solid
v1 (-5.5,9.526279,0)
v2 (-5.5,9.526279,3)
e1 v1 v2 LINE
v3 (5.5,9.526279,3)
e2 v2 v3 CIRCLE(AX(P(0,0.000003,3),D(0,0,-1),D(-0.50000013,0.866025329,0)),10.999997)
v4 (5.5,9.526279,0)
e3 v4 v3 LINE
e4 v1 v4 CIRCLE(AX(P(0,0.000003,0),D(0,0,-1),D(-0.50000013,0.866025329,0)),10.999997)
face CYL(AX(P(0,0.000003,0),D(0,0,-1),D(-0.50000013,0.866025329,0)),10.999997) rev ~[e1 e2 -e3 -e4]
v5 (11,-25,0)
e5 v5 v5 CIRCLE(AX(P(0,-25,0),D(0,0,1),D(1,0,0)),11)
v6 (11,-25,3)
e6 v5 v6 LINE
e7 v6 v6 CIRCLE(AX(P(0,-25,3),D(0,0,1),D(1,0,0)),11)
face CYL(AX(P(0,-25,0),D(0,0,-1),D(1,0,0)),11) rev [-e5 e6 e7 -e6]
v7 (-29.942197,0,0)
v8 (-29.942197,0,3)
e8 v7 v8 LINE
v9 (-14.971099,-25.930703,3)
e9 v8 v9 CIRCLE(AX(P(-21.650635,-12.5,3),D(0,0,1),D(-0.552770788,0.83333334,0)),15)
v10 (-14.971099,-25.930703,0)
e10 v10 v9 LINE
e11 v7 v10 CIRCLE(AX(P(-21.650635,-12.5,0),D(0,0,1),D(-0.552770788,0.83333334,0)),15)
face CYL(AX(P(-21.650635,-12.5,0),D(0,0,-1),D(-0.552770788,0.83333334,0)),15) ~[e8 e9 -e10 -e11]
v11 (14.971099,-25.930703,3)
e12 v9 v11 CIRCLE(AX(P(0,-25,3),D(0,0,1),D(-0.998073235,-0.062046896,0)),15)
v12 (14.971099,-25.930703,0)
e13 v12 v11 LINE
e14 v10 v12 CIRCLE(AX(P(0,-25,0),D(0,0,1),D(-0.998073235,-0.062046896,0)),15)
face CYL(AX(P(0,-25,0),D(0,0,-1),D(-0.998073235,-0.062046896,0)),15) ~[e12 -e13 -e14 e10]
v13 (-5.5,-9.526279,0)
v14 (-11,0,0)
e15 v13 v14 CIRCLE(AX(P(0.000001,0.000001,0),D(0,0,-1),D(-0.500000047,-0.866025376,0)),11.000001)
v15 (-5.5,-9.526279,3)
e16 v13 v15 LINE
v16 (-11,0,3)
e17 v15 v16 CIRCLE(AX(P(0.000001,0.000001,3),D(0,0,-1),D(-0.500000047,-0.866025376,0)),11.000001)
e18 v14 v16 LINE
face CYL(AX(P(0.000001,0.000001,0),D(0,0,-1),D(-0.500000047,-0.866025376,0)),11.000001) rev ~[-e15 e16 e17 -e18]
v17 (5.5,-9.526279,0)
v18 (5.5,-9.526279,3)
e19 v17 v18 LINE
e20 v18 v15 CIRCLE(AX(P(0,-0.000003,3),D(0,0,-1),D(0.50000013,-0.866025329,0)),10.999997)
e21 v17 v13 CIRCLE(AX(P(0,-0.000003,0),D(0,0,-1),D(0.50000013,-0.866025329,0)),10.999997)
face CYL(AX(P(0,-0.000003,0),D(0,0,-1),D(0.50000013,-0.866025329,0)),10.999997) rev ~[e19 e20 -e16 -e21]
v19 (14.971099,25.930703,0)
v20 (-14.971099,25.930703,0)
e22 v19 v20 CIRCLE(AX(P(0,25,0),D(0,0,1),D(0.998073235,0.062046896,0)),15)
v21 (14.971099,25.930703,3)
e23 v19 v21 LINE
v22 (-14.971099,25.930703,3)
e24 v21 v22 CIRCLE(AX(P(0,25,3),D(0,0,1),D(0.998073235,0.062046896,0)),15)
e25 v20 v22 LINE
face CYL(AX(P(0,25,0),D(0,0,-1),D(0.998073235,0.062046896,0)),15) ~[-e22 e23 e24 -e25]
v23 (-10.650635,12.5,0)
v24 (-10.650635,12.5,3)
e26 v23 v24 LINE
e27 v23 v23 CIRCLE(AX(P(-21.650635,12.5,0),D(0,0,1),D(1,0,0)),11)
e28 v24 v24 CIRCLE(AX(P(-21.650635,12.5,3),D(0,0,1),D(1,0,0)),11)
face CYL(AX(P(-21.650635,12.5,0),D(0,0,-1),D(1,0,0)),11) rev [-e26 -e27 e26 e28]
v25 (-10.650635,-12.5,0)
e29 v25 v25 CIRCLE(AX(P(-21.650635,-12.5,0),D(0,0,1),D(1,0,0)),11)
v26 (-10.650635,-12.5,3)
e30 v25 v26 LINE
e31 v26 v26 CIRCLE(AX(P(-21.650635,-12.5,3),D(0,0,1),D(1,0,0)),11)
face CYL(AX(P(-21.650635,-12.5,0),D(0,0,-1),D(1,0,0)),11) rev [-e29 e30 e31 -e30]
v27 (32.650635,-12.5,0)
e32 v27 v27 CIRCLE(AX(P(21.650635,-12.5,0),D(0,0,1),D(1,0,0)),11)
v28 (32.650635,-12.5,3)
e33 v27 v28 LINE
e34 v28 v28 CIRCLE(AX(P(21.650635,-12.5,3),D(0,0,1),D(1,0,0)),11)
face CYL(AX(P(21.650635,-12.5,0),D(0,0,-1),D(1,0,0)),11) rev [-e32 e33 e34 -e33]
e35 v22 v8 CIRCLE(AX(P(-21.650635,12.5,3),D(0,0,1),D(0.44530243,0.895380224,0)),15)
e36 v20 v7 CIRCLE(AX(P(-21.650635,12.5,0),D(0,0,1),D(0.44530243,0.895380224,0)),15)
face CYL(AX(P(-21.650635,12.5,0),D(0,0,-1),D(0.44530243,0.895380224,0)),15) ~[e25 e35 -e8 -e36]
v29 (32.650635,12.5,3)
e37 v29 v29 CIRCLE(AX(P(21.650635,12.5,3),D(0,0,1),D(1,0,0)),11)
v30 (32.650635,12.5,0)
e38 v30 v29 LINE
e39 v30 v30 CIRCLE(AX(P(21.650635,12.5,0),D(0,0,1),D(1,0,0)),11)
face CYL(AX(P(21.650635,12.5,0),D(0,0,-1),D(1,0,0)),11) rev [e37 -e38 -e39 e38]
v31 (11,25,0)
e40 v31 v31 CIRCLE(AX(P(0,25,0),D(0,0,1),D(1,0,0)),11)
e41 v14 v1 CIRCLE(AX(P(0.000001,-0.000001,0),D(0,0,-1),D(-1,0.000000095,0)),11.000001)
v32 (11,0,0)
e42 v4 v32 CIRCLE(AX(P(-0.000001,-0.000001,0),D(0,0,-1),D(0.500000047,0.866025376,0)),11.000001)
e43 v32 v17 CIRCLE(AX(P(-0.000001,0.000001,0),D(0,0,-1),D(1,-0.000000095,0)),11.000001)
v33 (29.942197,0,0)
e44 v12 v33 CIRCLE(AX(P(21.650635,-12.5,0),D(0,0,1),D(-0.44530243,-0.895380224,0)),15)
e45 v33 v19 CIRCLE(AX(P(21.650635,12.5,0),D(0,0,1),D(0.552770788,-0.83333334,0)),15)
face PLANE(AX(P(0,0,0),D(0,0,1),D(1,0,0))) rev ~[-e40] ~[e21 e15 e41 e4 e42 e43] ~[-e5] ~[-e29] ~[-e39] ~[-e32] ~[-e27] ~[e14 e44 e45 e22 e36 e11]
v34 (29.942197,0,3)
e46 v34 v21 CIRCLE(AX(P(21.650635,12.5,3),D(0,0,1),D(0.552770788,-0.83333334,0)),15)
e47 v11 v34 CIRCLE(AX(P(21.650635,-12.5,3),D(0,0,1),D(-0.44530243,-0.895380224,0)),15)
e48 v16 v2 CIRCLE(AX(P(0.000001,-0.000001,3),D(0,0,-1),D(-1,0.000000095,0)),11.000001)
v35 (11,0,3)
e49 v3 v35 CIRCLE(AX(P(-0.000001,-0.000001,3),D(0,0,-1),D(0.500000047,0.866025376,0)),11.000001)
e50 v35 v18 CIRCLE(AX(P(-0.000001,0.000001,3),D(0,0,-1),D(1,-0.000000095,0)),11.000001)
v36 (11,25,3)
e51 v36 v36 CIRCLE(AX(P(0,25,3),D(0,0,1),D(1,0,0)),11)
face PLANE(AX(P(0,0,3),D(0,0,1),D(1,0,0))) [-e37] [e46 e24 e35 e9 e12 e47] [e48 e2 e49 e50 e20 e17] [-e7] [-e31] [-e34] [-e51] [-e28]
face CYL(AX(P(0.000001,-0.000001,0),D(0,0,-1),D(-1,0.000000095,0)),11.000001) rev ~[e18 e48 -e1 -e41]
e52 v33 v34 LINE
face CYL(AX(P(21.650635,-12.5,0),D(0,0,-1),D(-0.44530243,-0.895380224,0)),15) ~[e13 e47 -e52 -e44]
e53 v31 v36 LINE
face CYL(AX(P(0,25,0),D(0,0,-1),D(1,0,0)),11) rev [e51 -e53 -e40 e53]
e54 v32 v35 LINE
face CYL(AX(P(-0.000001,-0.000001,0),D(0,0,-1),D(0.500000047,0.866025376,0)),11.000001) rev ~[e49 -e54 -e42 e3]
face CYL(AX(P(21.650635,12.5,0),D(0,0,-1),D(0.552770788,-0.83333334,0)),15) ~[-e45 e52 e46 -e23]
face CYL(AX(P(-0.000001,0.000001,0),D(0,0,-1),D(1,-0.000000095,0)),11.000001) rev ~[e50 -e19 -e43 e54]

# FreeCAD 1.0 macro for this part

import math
import FreeCAD as App
import Part
import Sketcher

doc = App.newDocument("Part")
body = doc.addObject("PartDesign::Body", "Body")

sketch1 = body.newObject("Sketcher::SketchObject", "Sketch")
sketch1.AttachmentSupport = (doc.getObject("XY_Plane"), [""])
sketch1.MapMode = "FlatFace"
sketch1.addGeometry([
    Part.ArcOfCircle(Part.Circle(App.Vector(22, 12, 0), App.Vector(0, 0, 1), 15), math.radians(-56), math.radians(116)),
    Part.ArcOfCircle(Part.Circle(App.Vector(0, 25, 0), App.Vector(0, 0, 1), 15), math.radians(4), math.radians(176)),
    Part.ArcOfCircle(Part.Circle(App.Vector(-22, 12, 0), App.Vector(0, 0, 1), 15), math.radians(64), math.radians(236)),
    Part.ArcOfCircle(Part.Circle(App.Vector(-22, -12, 0), App.Vector(0, 0, 1), 15), math.radians(124), math.radians(296)),
    Part.ArcOfCircle(Part.Circle(App.Vector(0, -25, 0), App.Vector(0, 0, 1), 15), math.radians(-176), math.radians(-4)),
    Part.ArcOfCircle(Part.Circle(App.Vector(22, -12, 0), App.Vector(0, 0, 1), 15), math.radians(-116), math.radians(56)),
    Part.Circle(App.Vector(-22, -12, 0), App.Vector(0, 0, 1), 11),
    Part.Circle(App.Vector(0, -25, 0), App.Vector(0, 0, 1), 11),
    Part.Circle(App.Vector(22, -12, 0), App.Vector(0, 0, 1), 11),
    Part.Circle(App.Vector(-22, 12, 0), App.Vector(0, 0, 1), 11),
    Part.ArcOfCircle(Part.Circle(App.Vector(0, 0, 0), App.Vector(0, 0, 1), 11), math.radians(120), math.radians(180)),
    Part.ArcOfCircle(Part.Circle(App.Vector(0, 0, 0), App.Vector(0, 0, 1), 11), math.radians(60), math.radians(120)),
    Part.ArcOfCircle(Part.Circle(App.Vector(0, 0, 0), App.Vector(0, 0, 1), 11), math.radians(0), math.radians(60)),
    Part.ArcOfCircle(Part.Circle(App.Vector(0, 0, 0), App.Vector(0, 0, 1), 11), math.radians(-60), math.radians(0)),
    Part.ArcOfCircle(Part.Circle(App.Vector(0, 0, 0), App.Vector(0, 0, 1), 11), math.radians(-120), math.radians(-60)),
    Part.ArcOfCircle(Part.Circle(App.Vector(0, 0, 0), App.Vector(0, 0, 1), 11), math.radians(-180), math.radians(-120)),
    Part.Circle(App.Vector(22, 12, 0), App.Vector(0, 0, 1), 11),
    Part.Circle(App.Vector(0, 25, 0), App.Vector(0, 0, 1), 11),
], False)
sketch1.addConstraint([
    Sketcher.Constraint("Coincident", 0, 2, 1, 1),
    Sketcher.Constraint("Coincident", 1, 2, 2, 1),
    Sketcher.Constraint("Coincident", 2, 2, 3, 1),
    Sketcher.Constraint("Coincident", 3, 2, 4, 1),
    Sketcher.Constraint("Coincident", 4, 2, 5, 1),
    Sketcher.Constraint("Coincident", 5, 2, 0, 1),
    Sketcher.Constraint("Tangent", 10, 1, 11, 2),
    Sketcher.Constraint("Tangent", 11, 1, 12, 2),
    Sketcher.Constraint("Tangent", 12, 1, 13, 2),
    Sketcher.Constraint("Tangent", 13, 1, 14, 2),
    Sketcher.Constraint("Tangent", 14, 1, 15, 2),
    Sketcher.Constraint("Tangent", 15, 1, 10, 2),
    Sketcher.Constraint("Coincident", 10, 3, -1, 1),
    Sketcher.Constraint("Coincident", 12, 3, -1, 1),
    Sketcher.Constraint("Coincident", 6, 3, 3, 3),
    Sketcher.Constraint("Coincident", 7, 3, 4, 3),
    Sketcher.Constraint("Coincident", 8, 3, 5, 3),
    Sketcher.Constraint("Coincident", 9, 3, 2, 3),
    Sketcher.Constraint("Coincident", 16, 3, 0, 3),
    Sketcher.Constraint("Coincident", 17, 3, 1, 3),
    Sketcher.Constraint("Equal", 0, 1),
    Sketcher.Constraint("Equal", 1, 2),
    Sketcher.Constraint("Equal", 2, 3),
    Sketcher.Constraint("Equal", 3, 4),
    Sketcher.Constraint("Equal", 4, 5),
    Sketcher.Constraint("Equal", 6, 7),
    Sketcher.Constraint("Equal", 7, 8),
    Sketcher.Constraint("Equal", 8, 9),
    Sketcher.Constraint("Equal", 9, 10),
    Sketcher.Constraint("Equal", 12, 13),
    Sketcher.Constraint("Equal", 15, 16),
    Sketcher.Constraint("Equal", 16, 17),
    Sketcher.Constraint("Symmetric", 0, 3, 3, 3, -1, 1),
    Sketcher.Constraint("Symmetric", 1, 3, 4, 3, -1, 1),
    Sketcher.Constraint("Symmetric", 2, 3, 5, 3, -1, 1),
    Sketcher.Constraint("Symmetric", 0, 3, 2, 3, -2),
    Sketcher.Constraint("PointOnObject", 1, 3, -2),
    Sketcher.Constraint("PointOnObject", 12, 1, -1),
    Sketcher.Constraint("PointOnObject", 15, 1, -1),
    Sketcher.Constraint("Horizontal", 10, 1, 11, 1),
    Sketcher.Constraint("Horizontal", 13, 1, 14, 1),
    Sketcher.Constraint("Vertical", 11, 1, 13, 1),
    Sketcher.Constraint("Diameter", 6, 22.0),
    Sketcher.Constraint("Radius", 0, 15.0),
    Sketcher.Constraint("DistanceY", -1, 1, 1, 3, 25.0),
    Sketcher.Constraint("DistanceY", 3, 3, 2, 3, 25.0),
    Sketcher.Constraint("DistanceX", 10, 1, 11, 1, 11.0),
    Sketcher.Constraint("DistanceX", 1, 2, -1, 1, 14.971099),
])
pad1 = body.newObject("PartDesign::Pad", "Pad")
pad1.Profile = sketch1
pad1.Length = 3

doc.recompute()
